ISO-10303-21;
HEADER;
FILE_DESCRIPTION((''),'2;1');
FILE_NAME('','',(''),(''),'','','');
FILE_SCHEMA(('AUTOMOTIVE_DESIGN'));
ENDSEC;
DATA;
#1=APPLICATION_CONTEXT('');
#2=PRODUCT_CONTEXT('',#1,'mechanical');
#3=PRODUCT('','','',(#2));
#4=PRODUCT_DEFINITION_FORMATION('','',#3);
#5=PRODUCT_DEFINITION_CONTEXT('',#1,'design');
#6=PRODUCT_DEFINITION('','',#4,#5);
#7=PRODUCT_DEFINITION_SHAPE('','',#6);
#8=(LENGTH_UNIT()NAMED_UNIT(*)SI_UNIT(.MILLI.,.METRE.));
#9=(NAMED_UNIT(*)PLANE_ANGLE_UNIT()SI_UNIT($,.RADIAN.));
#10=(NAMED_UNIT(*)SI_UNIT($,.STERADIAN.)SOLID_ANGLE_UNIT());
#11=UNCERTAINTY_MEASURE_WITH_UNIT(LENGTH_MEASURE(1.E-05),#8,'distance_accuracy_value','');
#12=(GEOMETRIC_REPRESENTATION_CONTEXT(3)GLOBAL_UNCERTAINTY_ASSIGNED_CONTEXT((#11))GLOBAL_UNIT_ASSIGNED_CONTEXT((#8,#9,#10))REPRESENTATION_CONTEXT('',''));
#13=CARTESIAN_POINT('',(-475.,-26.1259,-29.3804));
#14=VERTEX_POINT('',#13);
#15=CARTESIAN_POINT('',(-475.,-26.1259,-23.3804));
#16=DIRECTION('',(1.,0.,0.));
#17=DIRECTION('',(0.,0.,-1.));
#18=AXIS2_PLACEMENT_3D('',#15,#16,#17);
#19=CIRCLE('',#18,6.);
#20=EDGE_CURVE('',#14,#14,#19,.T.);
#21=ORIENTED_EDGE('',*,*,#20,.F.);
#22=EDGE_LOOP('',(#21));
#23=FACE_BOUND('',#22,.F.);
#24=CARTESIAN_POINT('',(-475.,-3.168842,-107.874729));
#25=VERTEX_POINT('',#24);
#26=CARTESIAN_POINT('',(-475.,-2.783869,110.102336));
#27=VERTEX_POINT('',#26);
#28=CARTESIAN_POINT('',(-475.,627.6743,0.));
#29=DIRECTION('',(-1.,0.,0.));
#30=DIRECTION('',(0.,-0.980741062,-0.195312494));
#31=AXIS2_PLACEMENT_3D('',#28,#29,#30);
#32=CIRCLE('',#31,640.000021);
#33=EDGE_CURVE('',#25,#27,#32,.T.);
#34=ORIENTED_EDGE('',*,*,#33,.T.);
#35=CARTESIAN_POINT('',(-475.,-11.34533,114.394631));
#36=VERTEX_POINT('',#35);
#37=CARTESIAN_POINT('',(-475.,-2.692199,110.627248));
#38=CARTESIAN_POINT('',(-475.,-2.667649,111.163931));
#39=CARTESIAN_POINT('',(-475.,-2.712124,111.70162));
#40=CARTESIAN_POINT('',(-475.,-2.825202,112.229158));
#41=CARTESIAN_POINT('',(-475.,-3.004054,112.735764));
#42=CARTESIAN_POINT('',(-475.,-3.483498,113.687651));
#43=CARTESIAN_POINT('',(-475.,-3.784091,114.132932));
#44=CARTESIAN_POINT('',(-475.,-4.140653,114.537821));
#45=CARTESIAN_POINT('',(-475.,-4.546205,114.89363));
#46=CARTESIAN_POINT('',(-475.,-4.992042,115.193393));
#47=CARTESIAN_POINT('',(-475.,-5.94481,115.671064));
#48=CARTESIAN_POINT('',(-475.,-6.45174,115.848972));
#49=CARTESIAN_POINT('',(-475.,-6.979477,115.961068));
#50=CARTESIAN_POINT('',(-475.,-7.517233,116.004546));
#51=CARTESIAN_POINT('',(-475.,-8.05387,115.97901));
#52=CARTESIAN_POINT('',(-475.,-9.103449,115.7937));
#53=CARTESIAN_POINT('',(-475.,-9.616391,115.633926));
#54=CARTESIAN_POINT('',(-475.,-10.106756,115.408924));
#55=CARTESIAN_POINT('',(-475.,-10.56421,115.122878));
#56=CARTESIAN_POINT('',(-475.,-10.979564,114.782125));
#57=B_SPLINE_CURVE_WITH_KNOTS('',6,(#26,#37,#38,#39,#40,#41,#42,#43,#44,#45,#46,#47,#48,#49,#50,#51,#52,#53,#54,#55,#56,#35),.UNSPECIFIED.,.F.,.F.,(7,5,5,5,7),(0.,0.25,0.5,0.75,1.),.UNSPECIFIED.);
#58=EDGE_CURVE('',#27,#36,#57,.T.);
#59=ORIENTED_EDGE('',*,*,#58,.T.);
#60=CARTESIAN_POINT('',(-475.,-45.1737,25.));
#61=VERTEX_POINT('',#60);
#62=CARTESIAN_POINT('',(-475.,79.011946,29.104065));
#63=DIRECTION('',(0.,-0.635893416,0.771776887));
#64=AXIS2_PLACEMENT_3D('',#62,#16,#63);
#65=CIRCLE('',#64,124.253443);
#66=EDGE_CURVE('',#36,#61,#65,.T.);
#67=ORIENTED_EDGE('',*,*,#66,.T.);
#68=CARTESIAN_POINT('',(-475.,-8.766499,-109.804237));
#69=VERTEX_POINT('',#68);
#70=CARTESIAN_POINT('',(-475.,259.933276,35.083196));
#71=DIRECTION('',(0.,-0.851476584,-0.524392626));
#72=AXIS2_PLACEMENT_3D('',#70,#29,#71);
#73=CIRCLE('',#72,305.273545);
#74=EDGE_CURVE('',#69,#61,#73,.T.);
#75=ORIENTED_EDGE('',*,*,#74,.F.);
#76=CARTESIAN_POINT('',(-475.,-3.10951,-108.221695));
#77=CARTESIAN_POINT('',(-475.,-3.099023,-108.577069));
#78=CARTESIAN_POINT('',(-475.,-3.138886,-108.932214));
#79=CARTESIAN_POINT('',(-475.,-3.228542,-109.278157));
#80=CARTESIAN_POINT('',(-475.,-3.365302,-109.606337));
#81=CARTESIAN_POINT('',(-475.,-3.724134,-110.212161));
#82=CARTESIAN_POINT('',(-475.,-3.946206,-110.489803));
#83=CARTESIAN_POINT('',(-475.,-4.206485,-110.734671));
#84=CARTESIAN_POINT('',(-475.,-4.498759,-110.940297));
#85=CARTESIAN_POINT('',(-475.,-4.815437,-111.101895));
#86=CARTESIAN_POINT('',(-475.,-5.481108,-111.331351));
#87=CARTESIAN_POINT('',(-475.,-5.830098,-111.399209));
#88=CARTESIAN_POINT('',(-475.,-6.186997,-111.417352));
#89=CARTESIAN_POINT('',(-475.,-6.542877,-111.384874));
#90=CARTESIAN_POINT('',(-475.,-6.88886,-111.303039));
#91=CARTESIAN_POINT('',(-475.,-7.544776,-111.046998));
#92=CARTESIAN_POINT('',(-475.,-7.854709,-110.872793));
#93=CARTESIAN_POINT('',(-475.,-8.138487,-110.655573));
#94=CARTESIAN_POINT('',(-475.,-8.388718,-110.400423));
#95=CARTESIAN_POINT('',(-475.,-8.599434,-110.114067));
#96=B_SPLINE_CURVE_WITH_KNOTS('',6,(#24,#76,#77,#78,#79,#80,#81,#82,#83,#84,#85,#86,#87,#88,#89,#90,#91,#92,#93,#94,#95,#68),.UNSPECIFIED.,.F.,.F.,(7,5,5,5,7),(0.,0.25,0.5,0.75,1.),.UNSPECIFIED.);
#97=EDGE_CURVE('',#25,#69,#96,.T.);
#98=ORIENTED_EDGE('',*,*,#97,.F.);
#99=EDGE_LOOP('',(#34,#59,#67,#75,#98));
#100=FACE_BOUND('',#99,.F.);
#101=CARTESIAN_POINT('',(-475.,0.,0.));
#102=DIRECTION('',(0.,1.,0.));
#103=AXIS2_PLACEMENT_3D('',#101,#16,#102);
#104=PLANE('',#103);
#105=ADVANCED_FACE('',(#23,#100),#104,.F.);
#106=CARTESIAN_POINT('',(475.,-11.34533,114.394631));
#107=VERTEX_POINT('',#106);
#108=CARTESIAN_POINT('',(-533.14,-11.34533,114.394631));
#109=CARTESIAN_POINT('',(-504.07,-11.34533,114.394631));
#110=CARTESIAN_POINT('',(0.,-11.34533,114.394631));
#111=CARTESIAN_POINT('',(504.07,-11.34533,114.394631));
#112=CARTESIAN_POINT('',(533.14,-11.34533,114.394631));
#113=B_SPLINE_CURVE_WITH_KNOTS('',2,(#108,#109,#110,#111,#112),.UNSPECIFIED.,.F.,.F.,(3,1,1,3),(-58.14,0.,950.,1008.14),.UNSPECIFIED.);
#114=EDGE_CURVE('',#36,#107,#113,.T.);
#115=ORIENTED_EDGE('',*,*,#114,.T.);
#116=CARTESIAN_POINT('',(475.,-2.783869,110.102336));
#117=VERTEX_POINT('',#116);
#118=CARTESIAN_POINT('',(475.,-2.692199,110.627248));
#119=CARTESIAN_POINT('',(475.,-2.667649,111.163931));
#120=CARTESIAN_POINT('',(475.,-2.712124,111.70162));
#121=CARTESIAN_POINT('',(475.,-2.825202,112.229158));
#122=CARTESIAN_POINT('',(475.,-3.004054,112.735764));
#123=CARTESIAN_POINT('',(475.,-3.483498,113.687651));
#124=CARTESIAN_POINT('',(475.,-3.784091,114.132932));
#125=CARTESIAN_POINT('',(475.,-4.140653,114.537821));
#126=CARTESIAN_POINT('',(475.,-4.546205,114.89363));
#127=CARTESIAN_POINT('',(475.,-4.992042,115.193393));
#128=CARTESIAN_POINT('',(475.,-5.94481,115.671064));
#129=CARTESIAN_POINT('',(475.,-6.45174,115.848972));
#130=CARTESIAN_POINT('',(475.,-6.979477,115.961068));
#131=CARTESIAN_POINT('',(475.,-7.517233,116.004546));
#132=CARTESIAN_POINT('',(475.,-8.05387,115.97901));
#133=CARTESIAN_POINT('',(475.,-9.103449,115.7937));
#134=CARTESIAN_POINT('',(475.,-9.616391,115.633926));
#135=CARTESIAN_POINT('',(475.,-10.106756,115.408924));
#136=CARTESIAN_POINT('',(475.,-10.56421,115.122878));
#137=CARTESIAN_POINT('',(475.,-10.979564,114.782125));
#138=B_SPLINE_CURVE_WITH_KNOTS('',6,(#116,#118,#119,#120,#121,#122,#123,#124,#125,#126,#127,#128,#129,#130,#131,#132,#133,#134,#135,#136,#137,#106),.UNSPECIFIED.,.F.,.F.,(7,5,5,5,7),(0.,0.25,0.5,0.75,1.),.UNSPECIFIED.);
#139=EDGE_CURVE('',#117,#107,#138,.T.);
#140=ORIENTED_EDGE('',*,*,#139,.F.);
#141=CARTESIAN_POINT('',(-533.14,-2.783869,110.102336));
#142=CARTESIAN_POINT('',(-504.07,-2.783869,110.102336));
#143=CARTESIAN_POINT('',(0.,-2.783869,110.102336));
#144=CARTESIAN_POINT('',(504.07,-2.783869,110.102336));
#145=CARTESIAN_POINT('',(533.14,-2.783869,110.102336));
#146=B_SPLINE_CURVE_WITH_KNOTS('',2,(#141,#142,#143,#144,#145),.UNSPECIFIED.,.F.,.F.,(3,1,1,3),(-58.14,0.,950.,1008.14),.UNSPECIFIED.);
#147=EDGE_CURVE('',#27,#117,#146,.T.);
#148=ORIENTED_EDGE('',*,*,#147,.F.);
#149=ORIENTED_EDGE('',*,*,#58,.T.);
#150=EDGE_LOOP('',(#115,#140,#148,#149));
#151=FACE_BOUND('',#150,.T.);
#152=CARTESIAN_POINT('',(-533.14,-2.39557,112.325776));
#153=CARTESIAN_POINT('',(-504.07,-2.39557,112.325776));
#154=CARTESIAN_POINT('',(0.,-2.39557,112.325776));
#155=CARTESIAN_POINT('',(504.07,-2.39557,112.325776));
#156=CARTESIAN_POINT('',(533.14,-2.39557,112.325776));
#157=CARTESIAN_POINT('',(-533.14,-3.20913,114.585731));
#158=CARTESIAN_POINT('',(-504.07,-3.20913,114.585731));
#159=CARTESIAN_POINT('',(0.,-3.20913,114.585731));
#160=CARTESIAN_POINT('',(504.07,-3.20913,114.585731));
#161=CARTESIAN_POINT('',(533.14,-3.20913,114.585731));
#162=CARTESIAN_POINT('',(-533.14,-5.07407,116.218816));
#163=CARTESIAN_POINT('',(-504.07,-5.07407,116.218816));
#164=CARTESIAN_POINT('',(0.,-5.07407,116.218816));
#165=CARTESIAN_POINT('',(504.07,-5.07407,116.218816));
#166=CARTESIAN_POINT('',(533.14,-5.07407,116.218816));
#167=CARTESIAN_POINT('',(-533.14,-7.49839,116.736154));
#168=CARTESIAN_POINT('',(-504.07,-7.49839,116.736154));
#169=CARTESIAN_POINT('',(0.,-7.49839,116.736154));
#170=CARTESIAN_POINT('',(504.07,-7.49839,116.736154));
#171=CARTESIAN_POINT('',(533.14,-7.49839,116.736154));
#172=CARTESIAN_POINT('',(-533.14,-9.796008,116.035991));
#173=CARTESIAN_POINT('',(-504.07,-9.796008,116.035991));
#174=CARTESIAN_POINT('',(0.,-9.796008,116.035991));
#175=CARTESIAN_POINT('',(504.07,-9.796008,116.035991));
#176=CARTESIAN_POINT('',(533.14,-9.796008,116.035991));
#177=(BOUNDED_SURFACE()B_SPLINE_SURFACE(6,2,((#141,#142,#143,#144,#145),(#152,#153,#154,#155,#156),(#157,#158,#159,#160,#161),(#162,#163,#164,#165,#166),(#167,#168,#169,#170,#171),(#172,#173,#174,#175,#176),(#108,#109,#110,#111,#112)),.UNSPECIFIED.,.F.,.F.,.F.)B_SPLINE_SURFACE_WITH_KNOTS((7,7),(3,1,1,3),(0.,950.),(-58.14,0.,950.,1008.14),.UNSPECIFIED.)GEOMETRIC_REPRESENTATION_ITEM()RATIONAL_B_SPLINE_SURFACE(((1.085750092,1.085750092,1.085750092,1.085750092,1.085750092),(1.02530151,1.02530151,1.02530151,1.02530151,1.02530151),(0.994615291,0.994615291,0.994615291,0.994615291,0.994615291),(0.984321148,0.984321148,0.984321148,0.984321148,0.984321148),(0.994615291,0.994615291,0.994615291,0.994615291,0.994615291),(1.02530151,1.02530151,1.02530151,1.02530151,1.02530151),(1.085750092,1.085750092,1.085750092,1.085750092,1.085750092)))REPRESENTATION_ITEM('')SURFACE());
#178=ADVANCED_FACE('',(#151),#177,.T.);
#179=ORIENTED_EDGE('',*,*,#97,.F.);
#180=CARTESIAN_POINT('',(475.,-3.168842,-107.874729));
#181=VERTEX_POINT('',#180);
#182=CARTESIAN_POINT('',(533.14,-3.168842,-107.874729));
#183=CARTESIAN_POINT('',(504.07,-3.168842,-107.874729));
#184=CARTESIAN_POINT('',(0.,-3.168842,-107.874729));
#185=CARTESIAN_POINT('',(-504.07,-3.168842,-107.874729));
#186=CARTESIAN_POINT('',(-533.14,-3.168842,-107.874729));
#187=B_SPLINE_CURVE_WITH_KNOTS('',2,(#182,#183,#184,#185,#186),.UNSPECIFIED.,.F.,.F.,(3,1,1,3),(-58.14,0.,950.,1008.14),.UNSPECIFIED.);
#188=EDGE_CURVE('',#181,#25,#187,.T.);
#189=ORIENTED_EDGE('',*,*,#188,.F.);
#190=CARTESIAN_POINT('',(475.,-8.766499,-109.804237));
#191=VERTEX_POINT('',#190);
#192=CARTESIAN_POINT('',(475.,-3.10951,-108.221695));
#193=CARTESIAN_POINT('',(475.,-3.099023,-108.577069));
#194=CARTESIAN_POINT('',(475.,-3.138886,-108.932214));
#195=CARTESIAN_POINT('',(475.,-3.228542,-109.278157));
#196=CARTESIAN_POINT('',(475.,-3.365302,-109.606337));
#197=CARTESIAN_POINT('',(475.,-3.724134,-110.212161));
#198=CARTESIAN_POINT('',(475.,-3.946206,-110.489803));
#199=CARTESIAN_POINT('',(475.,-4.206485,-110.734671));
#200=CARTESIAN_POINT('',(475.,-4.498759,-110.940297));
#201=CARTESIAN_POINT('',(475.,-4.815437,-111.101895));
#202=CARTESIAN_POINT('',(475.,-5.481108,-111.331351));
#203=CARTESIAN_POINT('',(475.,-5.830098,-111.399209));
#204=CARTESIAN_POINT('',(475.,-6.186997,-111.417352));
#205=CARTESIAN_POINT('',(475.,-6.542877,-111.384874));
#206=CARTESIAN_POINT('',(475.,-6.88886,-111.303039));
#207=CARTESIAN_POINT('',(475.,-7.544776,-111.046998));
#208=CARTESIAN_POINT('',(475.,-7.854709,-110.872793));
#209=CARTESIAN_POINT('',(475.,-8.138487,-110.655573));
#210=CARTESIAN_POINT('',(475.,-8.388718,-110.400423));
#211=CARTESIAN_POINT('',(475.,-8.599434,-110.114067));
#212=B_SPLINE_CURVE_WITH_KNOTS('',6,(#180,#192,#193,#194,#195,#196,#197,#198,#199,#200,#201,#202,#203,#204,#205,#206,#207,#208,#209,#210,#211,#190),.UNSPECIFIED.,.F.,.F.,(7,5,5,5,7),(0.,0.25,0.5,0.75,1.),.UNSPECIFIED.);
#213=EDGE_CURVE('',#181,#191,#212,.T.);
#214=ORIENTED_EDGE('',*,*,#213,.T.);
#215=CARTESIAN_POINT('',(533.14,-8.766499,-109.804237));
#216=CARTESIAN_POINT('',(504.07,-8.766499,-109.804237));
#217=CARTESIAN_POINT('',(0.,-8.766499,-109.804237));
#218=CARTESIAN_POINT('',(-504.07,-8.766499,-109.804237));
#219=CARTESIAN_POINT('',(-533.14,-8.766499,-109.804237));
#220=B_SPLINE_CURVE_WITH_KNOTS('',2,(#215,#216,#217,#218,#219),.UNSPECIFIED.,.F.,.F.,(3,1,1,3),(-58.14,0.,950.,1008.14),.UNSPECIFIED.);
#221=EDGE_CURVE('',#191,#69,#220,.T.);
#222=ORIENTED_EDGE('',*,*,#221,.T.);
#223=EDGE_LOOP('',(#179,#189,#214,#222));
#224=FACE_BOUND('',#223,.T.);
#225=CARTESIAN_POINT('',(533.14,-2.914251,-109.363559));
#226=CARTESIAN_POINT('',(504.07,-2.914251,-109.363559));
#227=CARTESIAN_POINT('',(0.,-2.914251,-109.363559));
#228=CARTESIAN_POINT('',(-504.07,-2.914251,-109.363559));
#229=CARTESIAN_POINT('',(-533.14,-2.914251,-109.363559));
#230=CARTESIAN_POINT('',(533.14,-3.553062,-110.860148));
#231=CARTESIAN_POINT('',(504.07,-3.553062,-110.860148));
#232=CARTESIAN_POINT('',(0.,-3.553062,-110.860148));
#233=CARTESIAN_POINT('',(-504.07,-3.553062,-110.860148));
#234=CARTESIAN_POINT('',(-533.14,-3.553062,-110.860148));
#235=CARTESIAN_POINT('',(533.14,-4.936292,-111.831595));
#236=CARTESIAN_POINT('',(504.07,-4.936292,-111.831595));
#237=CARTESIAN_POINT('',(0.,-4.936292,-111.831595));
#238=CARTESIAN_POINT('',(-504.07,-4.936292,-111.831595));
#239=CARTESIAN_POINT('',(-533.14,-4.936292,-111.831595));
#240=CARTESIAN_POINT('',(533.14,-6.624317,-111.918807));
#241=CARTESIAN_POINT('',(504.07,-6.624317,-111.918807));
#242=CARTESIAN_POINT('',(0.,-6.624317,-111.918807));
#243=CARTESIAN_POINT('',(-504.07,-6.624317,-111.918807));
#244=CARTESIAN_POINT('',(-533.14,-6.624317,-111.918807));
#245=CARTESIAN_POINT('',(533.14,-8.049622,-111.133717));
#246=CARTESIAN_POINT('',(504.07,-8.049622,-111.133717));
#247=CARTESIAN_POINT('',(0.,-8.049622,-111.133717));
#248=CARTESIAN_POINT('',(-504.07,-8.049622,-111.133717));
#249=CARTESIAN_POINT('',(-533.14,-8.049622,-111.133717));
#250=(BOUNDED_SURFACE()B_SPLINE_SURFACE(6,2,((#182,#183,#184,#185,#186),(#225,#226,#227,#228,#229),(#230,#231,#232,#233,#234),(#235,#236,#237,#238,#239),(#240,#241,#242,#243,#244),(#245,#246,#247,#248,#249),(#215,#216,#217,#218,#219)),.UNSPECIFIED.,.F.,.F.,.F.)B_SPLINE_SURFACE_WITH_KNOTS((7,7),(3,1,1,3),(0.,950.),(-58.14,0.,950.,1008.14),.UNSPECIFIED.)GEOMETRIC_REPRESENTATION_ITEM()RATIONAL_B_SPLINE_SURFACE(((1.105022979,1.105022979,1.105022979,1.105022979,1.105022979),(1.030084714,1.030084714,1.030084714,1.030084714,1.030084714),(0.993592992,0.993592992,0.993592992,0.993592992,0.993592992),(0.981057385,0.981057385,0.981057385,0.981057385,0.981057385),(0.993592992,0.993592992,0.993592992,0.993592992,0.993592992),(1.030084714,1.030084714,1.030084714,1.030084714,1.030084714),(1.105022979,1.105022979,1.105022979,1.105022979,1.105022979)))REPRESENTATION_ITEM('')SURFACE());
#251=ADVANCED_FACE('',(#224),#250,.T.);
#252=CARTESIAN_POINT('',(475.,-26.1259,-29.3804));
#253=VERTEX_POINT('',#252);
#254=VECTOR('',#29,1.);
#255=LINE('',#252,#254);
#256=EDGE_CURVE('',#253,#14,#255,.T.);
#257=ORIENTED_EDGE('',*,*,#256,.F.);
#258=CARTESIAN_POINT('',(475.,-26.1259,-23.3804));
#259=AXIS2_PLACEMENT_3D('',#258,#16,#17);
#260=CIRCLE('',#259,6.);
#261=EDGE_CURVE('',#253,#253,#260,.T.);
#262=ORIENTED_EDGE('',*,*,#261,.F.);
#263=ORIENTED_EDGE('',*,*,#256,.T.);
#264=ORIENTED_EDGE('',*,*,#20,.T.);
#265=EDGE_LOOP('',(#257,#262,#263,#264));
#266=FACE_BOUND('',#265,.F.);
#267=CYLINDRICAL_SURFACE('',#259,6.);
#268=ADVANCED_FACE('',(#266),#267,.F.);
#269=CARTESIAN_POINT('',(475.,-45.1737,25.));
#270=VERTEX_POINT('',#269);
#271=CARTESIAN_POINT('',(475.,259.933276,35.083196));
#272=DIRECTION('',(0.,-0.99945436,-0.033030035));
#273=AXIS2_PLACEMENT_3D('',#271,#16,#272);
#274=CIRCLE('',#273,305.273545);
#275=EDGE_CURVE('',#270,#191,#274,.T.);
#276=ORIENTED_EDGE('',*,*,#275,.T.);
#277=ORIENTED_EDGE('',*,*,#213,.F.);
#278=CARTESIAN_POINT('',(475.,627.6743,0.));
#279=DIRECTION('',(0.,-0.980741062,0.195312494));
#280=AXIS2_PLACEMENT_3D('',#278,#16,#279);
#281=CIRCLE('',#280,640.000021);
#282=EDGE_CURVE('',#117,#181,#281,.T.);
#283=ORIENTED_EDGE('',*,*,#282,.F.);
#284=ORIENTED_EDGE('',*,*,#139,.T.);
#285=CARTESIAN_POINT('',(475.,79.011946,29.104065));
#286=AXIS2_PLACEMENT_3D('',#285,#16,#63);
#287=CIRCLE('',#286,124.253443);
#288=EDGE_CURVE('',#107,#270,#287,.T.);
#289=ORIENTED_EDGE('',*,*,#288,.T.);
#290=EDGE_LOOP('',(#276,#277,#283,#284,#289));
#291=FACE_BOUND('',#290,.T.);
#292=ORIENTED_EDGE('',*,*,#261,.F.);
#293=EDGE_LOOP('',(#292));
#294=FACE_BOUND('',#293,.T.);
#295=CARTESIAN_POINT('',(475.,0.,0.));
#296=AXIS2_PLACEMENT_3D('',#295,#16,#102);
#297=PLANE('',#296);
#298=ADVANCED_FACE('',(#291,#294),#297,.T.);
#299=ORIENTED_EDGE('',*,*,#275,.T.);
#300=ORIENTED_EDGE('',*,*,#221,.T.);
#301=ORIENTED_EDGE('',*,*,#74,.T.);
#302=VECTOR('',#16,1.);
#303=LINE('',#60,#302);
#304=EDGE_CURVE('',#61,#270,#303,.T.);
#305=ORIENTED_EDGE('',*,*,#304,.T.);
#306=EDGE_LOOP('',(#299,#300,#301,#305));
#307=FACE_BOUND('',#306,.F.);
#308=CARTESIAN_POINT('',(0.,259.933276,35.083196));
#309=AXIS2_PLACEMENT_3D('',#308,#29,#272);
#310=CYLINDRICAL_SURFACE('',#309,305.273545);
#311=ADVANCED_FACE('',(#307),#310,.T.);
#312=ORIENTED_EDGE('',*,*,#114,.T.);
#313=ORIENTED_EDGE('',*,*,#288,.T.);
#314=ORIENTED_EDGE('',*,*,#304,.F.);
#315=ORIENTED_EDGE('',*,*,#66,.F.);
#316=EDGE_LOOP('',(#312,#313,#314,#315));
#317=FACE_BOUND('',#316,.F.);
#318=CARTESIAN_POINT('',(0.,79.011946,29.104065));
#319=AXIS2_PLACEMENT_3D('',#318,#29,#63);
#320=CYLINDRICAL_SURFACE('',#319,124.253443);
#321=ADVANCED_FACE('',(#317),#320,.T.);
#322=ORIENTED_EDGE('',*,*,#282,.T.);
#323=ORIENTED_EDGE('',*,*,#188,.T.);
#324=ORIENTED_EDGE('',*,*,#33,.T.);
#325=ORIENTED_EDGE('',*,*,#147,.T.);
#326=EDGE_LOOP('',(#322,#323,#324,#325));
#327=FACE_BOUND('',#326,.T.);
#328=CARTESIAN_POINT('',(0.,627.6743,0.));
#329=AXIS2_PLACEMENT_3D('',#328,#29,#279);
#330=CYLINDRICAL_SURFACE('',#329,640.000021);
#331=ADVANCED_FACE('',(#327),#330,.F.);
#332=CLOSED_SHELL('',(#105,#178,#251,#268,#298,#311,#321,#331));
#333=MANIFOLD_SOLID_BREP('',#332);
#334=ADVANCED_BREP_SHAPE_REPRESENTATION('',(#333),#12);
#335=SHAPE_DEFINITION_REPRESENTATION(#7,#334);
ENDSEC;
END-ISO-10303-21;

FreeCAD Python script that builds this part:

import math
import FreeCAD as App
import Part
import Sketcher
from FreeCAD import Vector
Q = App.Units.Quantity


def edges_at(feature, points):
    """Names of the edges that pass closest to the given points."""
    edges = feature.Shape.Edges
    near = lambda p: min(range(len(edges)), key=lambda i: edges[i].distToShape(Part.Vertex(*p))[0])
    return sorted({f"Edge{near(p) + 1}" for p in points})

doc = App.newDocument("Part")
params = doc.addObject("Spreadsheet::Sheet", "Params")
for row, (alias, value) in enumerate([
    ("sketch1_radius", "640 mm"),
    ("pad1_length", "950 mm"),
    ("fillet_radius", "5 mm"),
    ("fillet2_radius", "3 mm"),
    ("sketch2_diameter", "12 mm"),
], start=1):
    params.set(f"A{row}", alias)
    params.set(f"B{row}", "=" + value)
    params.setAlias(f"B{row}", alias)

body = doc.addObject("PartDesign::Body", "Body")

# Sketch on YZ plane
sketch1 = body.newObject("Sketcher::SketchObject", "Sketch")
sketch1.AttachmentSupport = (doc.getObject("YZ_Plane"), [""])
sketch1.MapMode = "FlatFace"
sketch1.addGeometry([
    Part.ArcOfCircle(Part.Circle(Vector(79, 29, 0), Vector(0, 0, 1), 124), math.radians(129), math.radians(182)),
    Part.ArcOfCircle(Part.Circle(Vector(260, 35, 0), Vector(0, 0, 1), 305), math.radians(-178), math.radians(-148)),
    Part.ArcOfCircle(Part.Circle(Vector(628, 0, 0), Vector(0, 0, 1), 640), math.radians(169), math.radians(191)),
], False)
sketch1.addConstraint([
    Sketcher.Constraint("Tangent", 0, 2, 1, 1),
    Sketcher.Constraint("Coincident", 1, 2, 2, 2),
    Sketcher.Constraint("Coincident", 2, 1, 0, 1),
    Sketcher.Constraint("Symmetric", 1, 2, 2, 1, -1, 1),
    Sketcher.Constraint("PointOnObject", 2, 3, -1),
    Sketcher.Constraint("Radius", 2, Q("640 mm")),
    Sketcher.Constraint("DistanceY", 0, 2, 2, 1, Q("100 mm")),
    Sketcher.Constraint("DistanceY", 1, 2, 2, 1, Q("250 mm")),
    Sketcher.Constraint("Radius", 0, Q("124.2534 mm")),
    Sketcher.Constraint("Radius", 1, Q("305.2736 mm")),
])
sketch1.setExpression("Constraints[5]", "Params.sketch1_radius")
pad1 = body.newObject("PartDesign::Pad", "Pad")
pad1.Profile = sketch1
pad1.setExpression("Length", "Params.pad1_length")
pad1.Midplane = True
doc.recompute()

fillet = body.newObject("PartDesign::Fillet", "Fillet")
fillet.Base = (pad1, edges_at(pad1, [(0, 0, 125)]))
fillet.setExpression("Radius", "Params.fillet_radius")
doc.recompute()

fillet2 = body.newObject("PartDesign::Fillet", "Fillet001")
fillet2.Base = (fillet, edges_at(fillet, [(0, 0, -125)]))
fillet2.setExpression("Radius", "Params.fillet2_radius")

# Sketch on YZ plane
sketch2 = body.newObject("Sketcher::SketchObject", "Sketch001")
sketch2.AttachmentSupport = (doc.getObject("YZ_Plane"), [""])
sketch2.MapMode = "FlatFace"
sketch2.AttachmentOffset = App.Placement(Vector(0, 0, 475), App.Rotation())
sketch2.addGeometry(Part.Circle(Vector(-26, -23, 0), Vector(0, 0, 1), 6), False)
sketch2.addConstraint([
    Sketcher.Constraint("Diameter", 0, Q("12 mm")),
    Sketcher.Constraint("DistanceX", 0, 3, -1, 1, Q("26.126 mm")),
    Sketcher.Constraint("DistanceY", 0, 3, -1, 1, Q("23.3804 mm")),
])
sketch2.setExpression("Constraints[0]", "Params.sketch2_diameter")
pocket1 = body.newObject("PartDesign::Pocket", "Pocket")
pocket1.Profile = sketch2
pocket1.Type = "ThroughAll"

doc.recompute()
